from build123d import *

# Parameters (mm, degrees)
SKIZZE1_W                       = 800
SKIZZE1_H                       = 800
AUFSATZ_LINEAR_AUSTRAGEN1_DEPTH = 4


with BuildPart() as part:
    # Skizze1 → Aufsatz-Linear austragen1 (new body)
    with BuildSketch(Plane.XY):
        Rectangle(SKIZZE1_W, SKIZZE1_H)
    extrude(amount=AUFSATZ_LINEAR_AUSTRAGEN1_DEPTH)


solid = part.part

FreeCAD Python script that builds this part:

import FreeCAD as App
import Part
import Sketcher
from FreeCAD import Vector


def add_polygon(sketch, points):
    """Adds a closed chain of lines whose ends are joined by coincident constraints."""
    first, n = sketch.GeometryCount, len(points)
    for a, b in zip(points, points[1:] + points[:1]):
        sketch.addGeometry(Part.LineSegment(App.Vector(*a, 0), App.Vector(*b, 0)), False)
    for i in range(n):
        sketch.addConstraint(Sketcher.Constraint("Coincident", first + i, 2, first + (i + 1) % n, 1))

doc = App.newDocument("Part")
params = doc.addObject("Spreadsheet::Sheet", "Params")
for row, (alias, value) in enumerate([
    ("sketch1_width", "800 mm"),
    ("pad1_length", "4 mm"),
], start=1):
    params.set(f"A{row}", alias)
    params.set(f"B{row}", "=" + value)
    params.setAlias(f"B{row}", alias)

body = doc.addObject("PartDesign::Body", "Body")

sketch1 = doc.addObject("Sketcher::SketchObject", "Sketch")
body.addObject(sketch1)
sketch1.AttachmentSupport = (doc.XY_Plane, [""])
sketch1.MapMode = "FlatFace"
add_polygon(sketch1, [(-400, 400), (-400, -400), (400, -400), (400, 400)])
sketch1.addConstraint([
    Sketcher.Constraint("Vertical", 0),
    Sketcher.Constraint("Horizontal", 1),
    Sketcher.Constraint("Vertical", 2),
    Sketcher.Constraint("Horizontal", 3),
    Sketcher.Constraint("Symmetric", 0, 2, 2, 2, -1, 1),
    Sketcher.Constraint("Equal", 3, 0),
    Sketcher.Constraint("DistanceX", 1, 1, 1, 2, 800.0),
])
sketch1.setExpression("Constraints[10]", "Params.sketch1_width")
pad1 = doc.addObject("PartDesign::Pad", "Pad")
body.addObject(pad1)
pad1.Profile = sketch1
pad1.setExpression("Length", "Params.pad1_length")

doc.recompute()
